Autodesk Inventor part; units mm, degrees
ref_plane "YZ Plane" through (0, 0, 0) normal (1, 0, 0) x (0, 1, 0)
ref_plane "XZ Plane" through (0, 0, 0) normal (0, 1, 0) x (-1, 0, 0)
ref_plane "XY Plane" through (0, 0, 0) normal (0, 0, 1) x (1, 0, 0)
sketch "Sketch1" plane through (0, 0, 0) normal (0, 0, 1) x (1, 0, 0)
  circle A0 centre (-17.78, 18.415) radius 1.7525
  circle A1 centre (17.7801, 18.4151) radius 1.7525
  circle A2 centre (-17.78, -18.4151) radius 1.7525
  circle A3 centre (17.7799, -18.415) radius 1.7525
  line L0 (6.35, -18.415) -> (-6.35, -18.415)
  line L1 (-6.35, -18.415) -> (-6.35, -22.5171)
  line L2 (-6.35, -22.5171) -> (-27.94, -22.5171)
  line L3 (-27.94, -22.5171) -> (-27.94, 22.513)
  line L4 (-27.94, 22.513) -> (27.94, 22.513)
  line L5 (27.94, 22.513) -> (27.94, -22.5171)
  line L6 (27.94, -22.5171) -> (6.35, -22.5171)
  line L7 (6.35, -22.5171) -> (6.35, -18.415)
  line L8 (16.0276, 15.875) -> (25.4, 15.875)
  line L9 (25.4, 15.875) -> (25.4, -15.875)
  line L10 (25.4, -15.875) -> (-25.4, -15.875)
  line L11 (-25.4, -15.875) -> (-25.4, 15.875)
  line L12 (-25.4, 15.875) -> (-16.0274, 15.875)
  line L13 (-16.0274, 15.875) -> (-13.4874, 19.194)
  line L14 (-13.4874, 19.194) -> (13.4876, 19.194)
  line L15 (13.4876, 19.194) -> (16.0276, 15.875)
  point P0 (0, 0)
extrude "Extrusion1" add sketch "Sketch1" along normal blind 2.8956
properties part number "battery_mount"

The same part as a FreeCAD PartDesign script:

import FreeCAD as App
import Part
import Sketcher

V = App.Vector
Q = App.Units.Quantity

doc = App.newDocument("Part")
params = doc.addObject("Spreadsheet::Sheet", "Params")
for row, (alias, value) in enumerate([
    ("sketch1_width", "2 in"),
    ("sketch1_diameter", "0.138 in"),
    ("sketch1_width2", "0.5 in"),
    ("sketch1_width3", "2.2 in"),
    ("sketch1_height", "1.25 in"),
    ("pad1_length", "0.114 in"),
], start=1):
    params.set(f"A{row}", alias)
    params.set(f"B{row}", "=" + value)
    params.setAlias(f"B{row}", alias)

body = doc.addObject("PartDesign::Body", "Body")

# Sketch on XY plane
sketch1 = body.newObject("Sketcher::SketchObject", "Sketch")
sketch1.AttachmentSupport = (doc.getObject("XY_Plane"), [""])
sketch1.MapMode = "FlatFace"
sketch1.addGeometry([
    Part.LineSegment(V(-6.35, -18.415, 0), V(6.35, -18.415, 0)),  # 0
    Part.LineSegment(V(6.35, -18.415, 0), V(6.35, -22.5171, 0)),  # 1
    Part.LineSegment(V(6.35, -22.5171, 0), V(27.94, -22.5171, 0)),  # 2
    Part.LineSegment(V(27.94, -22.5171, 0), V(27.94, 22.513, 0)),  # 3
    Part.LineSegment(V(27.94, 22.513, 0), V(-27.94, 22.513, 0)),  # 4
    Part.LineSegment(V(-27.94, 22.513, 0), V(-27.94, -22.5171, 0)),  # 5
    Part.LineSegment(V(-27.94, -22.5171, 0), V(-6.35, -22.5171, 0)),  # 6
    Part.LineSegment(V(-6.35, -22.5171, 0), V(-6.35, -18.415, 0)),  # 7
    Part.Circle(V(-17.78, -18.4151, 0), V(0, 0, 1), 1.7525),  # 8
    Part.Circle(V(17.7799, -18.415, 0), V(0, 0, 1), 1.7525),  # 9
    Part.Circle(V(-17.78, 18.415, 0), V(0, 0, 1), 1.7525),  # 10
    Part.LineSegment(V(13.4876, 19.194, 0), V(16.0276, 15.875, 0)),  # 11
    Part.LineSegment(V(16.0276, 15.875, 0), V(25.4, 15.875, 0)),  # 12
    Part.LineSegment(V(25.4, 15.875, 0), V(25.4, -15.875, 0)),  # 13
    Part.LineSegment(V(25.4, -15.875, 0), V(-25.4, -15.875, 0)),  # 14
    Part.LineSegment(V(-25.4, -15.875, 0), V(-25.4, 15.875, 0)),  # 15
    Part.LineSegment(V(-25.4, 15.875, 0), V(-16.0274, 15.875, 0)),  # 16
    Part.LineSegment(V(-16.0274, 15.875, 0), V(-13.4874, 19.194, 0)),  # 17
    Part.LineSegment(V(-13.4874, 19.194, 0), V(13.4876, 19.194, 0)),  # 18
    Part.Circle(V(17.7801, 18.4151, 0), V(0, 0, 1), 1.7525),  # 19
], False)
sketch1.addConstraint([
    Sketcher.Constraint("Coincident", 0, 2, 1, 1),
    Sketcher.Constraint("Coincident", 1, 2, 2, 1),
    Sketcher.Constraint("Coincident", 2, 2, 3, 1),
    Sketcher.Constraint("Coincident", 3, 2, 4, 1),
    Sketcher.Constraint("Coincident", 4, 2, 5, 1),
    Sketcher.Constraint("Coincident", 5, 2, 6, 1),
    Sketcher.Constraint("Coincident", 6, 2, 7, 1),
    Sketcher.Constraint("Coincident", 7, 2, 0, 1),
    Sketcher.Constraint("Coincident", 11, 2, 12, 1),
    Sketcher.Constraint("Coincident", 12, 2, 13, 1),
    Sketcher.Constraint("Coincident", 13, 2, 14, 1),
    Sketcher.Constraint("Coincident", 14, 2, 15, 1),
    Sketcher.Constraint("Coincident", 15, 2, 16, 1),
    Sketcher.Constraint("Coincident", 16, 2, 17, 1),
    Sketcher.Constraint("Coincident", 17, 2, 18, 1),
    Sketcher.Constraint("Coincident", 18, 2, 11, 1),
    Sketcher.Constraint("Horizontal", 0),
    Sketcher.Constraint("Vertical", 1),
    Sketcher.Constraint("Horizontal", 2),
    Sketcher.Constraint("Vertical", 3),
    Sketcher.Constraint("Horizontal", 4),
    Sketcher.Constraint("Vertical", 5),
    Sketcher.Constraint("Horizontal", 6),
    Sketcher.Constraint("Vertical", 7),
    Sketcher.Constraint("Horizontal", 12),
    Sketcher.Constraint("Vertical", 13),
    Sketcher.Constraint("Horizontal", 14),
    Sketcher.Constraint("Vertical", 15),
    Sketcher.Constraint("Horizontal", 16),
    Sketcher.Constraint("Horizontal", 18),
    Sketcher.Constraint("Equal", 8, 9),
    Sketcher.Constraint("Equal", 9, 10),
    Sketcher.Constraint("Equal", 10, 19),
    Sketcher.Constraint("Symmetric", 9, 3, 10, 3, -1, 1),
    Sketcher.Constraint("Symmetric", 8, 3, 19, 3, -1, 1),
    Sketcher.Constraint("Symmetric", 12, 2, 14, 2, -1, 1),
    Sketcher.Constraint("Symmetric", 8, 3, 9, 3, -2),
    Sketcher.Constraint("Symmetric", 2, 2, 5, 2, -2),
    Sketcher.Constraint("Symmetric", 11, 2, 16, 2, -2),
    Sketcher.Constraint("Horizontal", 9, 3, 0, 2),
    Sketcher.Constraint("Equal", 2, 6),
    Sketcher.Constraint("Equal", 11, 17),
    Sketcher.Constraint("DistanceX", 14, 2, 14, 1, Q("2 in")),
    Sketcher.Constraint("Diameter", 8, Q("0.138 in")),
    Sketcher.Constraint("DistanceX", 0, 1, 0, 2, Q("0.5 in")),
    Sketcher.Constraint("DistanceX", 4, 2, 4, 1, Q("2.2 in")),
    Sketcher.Constraint("DistanceY", 13, 2, 13, 1, Q("1.25 in")),
    Sketcher.Constraint("DistanceX", 8, 3, -1, 1, Q("0.7 in")),
    Sketcher.Constraint("DistanceY", 11, 2, 19, 3, Q("0.1 in")),
    Sketcher.Constraint("DistanceX", 16, 2, 17, 2, Q("0.1 in")),
    Sketcher.Constraint("DistanceX", 12, 1, 12, 2, Q("0.369 in")),
    Sketcher.Constraint("DistanceY", 1, 2, 1, 1, Q("0.1615 in")),
    Sketcher.Constraint("DistanceY", 3, 1, 3, 2, 45.03),
    Sketcher.Constraint("Distance", 11, 4.1794),
])
sketch1.setExpression("Constraints[42]", "Params.sketch1_width")
sketch1.setExpression("Constraints[43]", "Params.sketch1_diameter")
sketch1.setExpression("Constraints[44]", "Params.sketch1_width2")
sketch1.setExpression("Constraints[45]", "Params.sketch1_width3")
sketch1.setExpression("Constraints[46]", "Params.sketch1_height")
pad1 = body.newObject("PartDesign::Pad", "Pad")
pad1.Profile = sketch1
pad1.setExpression("Length", "Params.pad1_length")

doc.recompute()
